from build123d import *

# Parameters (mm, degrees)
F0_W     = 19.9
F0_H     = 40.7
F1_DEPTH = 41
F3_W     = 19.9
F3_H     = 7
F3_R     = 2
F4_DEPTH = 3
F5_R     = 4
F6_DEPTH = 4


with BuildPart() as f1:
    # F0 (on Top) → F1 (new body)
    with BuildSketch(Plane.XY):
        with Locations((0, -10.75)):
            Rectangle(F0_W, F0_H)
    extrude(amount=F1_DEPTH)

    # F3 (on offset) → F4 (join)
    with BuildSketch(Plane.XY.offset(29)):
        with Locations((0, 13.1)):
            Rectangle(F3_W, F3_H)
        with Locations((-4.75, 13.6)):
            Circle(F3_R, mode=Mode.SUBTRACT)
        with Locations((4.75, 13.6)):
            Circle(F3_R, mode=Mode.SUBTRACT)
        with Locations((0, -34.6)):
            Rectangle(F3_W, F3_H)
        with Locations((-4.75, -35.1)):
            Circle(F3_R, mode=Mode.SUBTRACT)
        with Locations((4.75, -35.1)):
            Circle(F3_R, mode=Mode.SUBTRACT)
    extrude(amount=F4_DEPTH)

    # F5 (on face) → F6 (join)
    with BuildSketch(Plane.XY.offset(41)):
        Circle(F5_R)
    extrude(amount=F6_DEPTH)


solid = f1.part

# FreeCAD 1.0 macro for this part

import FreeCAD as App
import Part
import Sketcher
from FreeCAD import Vector
Q = App.Units.Quantity

doc = App.newDocument("Part")
body = doc.addObject("PartDesign::Body", "Body")

sketch1 = body.newObject("Sketcher::SketchObject", "Sketch")
sketch1.AttachmentSupport = (doc.getObject("XY_Plane"), [""])
sketch1.MapMode = "FlatFace"
sketch1.addGeometry([
    Part.LineSegment(Vector(-9.95, 9.6, 0), Vector(-9.95, -31.1, 0)),
    Part.LineSegment(Vector(-9.95, -31.1, 0), Vector(9.95, -31.1, 0)),
    Part.LineSegment(Vector(9.95, -31.1, 0), Vector(9.95, 9.6, 0)),
    Part.LineSegment(Vector(9.95, 9.6, 0), Vector(-9.95, 9.6, 0)),
], False)
sketch1.addConstraint([
    Sketcher.Constraint("Coincident", 0, 2, 1, 1),
    Sketcher.Constraint("Coincident", 1, 2, 2, 1),
    Sketcher.Constraint("Coincident", 2, 2, 3, 1),
    Sketcher.Constraint("Coincident", 3, 2, 0, 1),
    Sketcher.Constraint("Vertical", 0),
    Sketcher.Constraint("Horizontal", 1),
    Sketcher.Constraint("Vertical", 2),
    Sketcher.Constraint("Horizontal", 3),
    Sketcher.Constraint("DistanceX", 1, 1, 1, 2, Q("19.9 mm")),
    Sketcher.Constraint("DistanceY", 0, 2, 0, 1, Q("40.7 mm")),
    Sketcher.Constraint("DistanceY", 0, 2, -1, 1, Q("31.1 mm")),
    Sketcher.Constraint("DistanceX", 0, 2, -1, 1, Q("9.95 mm")),
])
pad1 = body.newObject("PartDesign::Pad", "Pad")
pad1.Profile = sketch1
pad1.Length = 41

sketch2 = body.newObject("Sketcher::SketchObject", "Sketch001")
sketch2.AttachmentSupport = (doc.getObject("XY_Plane"), [""])
sketch2.MapMode = "FlatFace"
sketch2.AttachmentOffset = App.Placement(Vector(0, 0, 29), App.Rotation())
sketch2.addGeometry([
    Part.LineSegment(Vector(-9.95, 16.6, 0), Vector(-9.95, 9.6, 0)),
    Part.LineSegment(Vector(-9.95, 9.6, 0), Vector(9.95, 9.6, 0)),
    Part.LineSegment(Vector(9.95, 9.6, 0), Vector(9.95, 16.6, 0)),
    Part.LineSegment(Vector(9.95, 16.6, 0), Vector(-9.95, 16.6, 0)),
    Part.Circle(Vector(-4.75, 13.6, 0), Vector(0, 0, 1), 2),
    Part.Circle(Vector(4.75, 13.6, 0), Vector(0, 0, 1), 2),
    Part.LineSegment(Vector(-9.95, -31.1, 0), Vector(-9.95, -38.1, 0)),
    Part.LineSegment(Vector(-9.95, -38.1, 0), Vector(9.95, -38.1, 0)),
    Part.LineSegment(Vector(9.95, -38.1, 0), Vector(9.95, -31.1, 0)),
    Part.LineSegment(Vector(9.95, -31.1, 0), Vector(-9.95, -31.1, 0)),
    Part.Circle(Vector(-4.75, -35.1, 0), Vector(0, 0, 1), 2),
    Part.Circle(Vector(4.75, -35.1, 0), Vector(0, 0, 1), 2),
], False)
sketch2.addConstraint([
    Sketcher.Constraint("Coincident", 0, 2, 1, 1),
    Sketcher.Constraint("Coincident", 1, 2, 2, 1),
    Sketcher.Constraint("Coincident", 2, 2, 3, 1),
    Sketcher.Constraint("Coincident", 3, 2, 0, 1),
    Sketcher.Constraint("Coincident", 6, 2, 7, 1),
    Sketcher.Constraint("Coincident", 7, 2, 8, 1),
    Sketcher.Constraint("Coincident", 8, 2, 9, 1),
    Sketcher.Constraint("Coincident", 9, 2, 6, 1),
    Sketcher.Constraint("Vertical", 0),
    Sketcher.Constraint("Horizontal", 1),
    Sketcher.Constraint("Vertical", 2),
    Sketcher.Constraint("Horizontal", 3),
    Sketcher.Constraint("Vertical", 6),
    Sketcher.Constraint("Horizontal", 7),
    Sketcher.Constraint("Vertical", 8),
    Sketcher.Constraint("Horizontal", 9),
    Sketcher.Constraint("Equal", 4, 5),
    Sketcher.Constraint("Equal", 5, 10),
    Sketcher.Constraint("Equal", 10, 11),
    Sketcher.Constraint("Symmetric", 4, 3, 5, 3, -2),
    Sketcher.Constraint("Symmetric", 10, 3, 11, 3, -2),
    Sketcher.Constraint("Vertical", 4, 3, 10, 3),
    Sketcher.Constraint("Vertical", 3, 2, 6, 2),
    Sketcher.Constraint("Vertical", 2, 2, 7, 2),
    Sketcher.Constraint("Equal", 2, 6),
    Sketcher.Constraint("Diameter", 4, Q("4 mm")),
    Sketcher.Constraint("DistanceY", 0, 2, 0, 1, Q("7 mm")),
    Sketcher.Constraint("DistanceX", 1, 1, 1, 2, Q("19.9 mm")),
    Sketcher.Constraint("DistanceY", 0, 2, 4, 3, Q("4 mm")),
    Sketcher.Constraint("DistanceY", 6, 2, 10, 3, Q("3 mm")),
    Sketcher.Constraint("DistanceY", -1, 1, 4, 3, Q("13.6 mm")),
    Sketcher.Constraint("DistanceY", 10, 3, -1, 1, Q("35.1 mm")),
    Sketcher.Constraint("DistanceX", 4, 3, 5, 3, Q("9.5 mm")),
    Sketcher.Constraint("DistanceX", 0, 2, 4, 3, Q("5.2 mm")),
])
pad2 = body.newObject("PartDesign::Pad", "Pad001")
pad2.Profile = sketch2
pad2.Length = 3

sketch3 = body.newObject("Sketcher::SketchObject", "Sketch002")
sketch3.AttachmentSupport = (doc.getObject("XY_Plane"), [""])
sketch3.MapMode = "FlatFace"
sketch3.AttachmentOffset = App.Placement(Vector(0, 0, 41), App.Rotation())
sketch3.addGeometry(Part.Circle(Vector(0, 0, 0), Vector(0, 0, 1), 4), False)
sketch3.addConstraint([
    Sketcher.Constraint("Coincident", 0, 3, -1, 1),
    Sketcher.Constraint("Diameter", 0, Q("8 mm")),
])
pad3 = body.newObject("PartDesign::Pad", "Pad002")
pad3.Profile = sketch3
pad3.Length = 4

doc.recompute()
